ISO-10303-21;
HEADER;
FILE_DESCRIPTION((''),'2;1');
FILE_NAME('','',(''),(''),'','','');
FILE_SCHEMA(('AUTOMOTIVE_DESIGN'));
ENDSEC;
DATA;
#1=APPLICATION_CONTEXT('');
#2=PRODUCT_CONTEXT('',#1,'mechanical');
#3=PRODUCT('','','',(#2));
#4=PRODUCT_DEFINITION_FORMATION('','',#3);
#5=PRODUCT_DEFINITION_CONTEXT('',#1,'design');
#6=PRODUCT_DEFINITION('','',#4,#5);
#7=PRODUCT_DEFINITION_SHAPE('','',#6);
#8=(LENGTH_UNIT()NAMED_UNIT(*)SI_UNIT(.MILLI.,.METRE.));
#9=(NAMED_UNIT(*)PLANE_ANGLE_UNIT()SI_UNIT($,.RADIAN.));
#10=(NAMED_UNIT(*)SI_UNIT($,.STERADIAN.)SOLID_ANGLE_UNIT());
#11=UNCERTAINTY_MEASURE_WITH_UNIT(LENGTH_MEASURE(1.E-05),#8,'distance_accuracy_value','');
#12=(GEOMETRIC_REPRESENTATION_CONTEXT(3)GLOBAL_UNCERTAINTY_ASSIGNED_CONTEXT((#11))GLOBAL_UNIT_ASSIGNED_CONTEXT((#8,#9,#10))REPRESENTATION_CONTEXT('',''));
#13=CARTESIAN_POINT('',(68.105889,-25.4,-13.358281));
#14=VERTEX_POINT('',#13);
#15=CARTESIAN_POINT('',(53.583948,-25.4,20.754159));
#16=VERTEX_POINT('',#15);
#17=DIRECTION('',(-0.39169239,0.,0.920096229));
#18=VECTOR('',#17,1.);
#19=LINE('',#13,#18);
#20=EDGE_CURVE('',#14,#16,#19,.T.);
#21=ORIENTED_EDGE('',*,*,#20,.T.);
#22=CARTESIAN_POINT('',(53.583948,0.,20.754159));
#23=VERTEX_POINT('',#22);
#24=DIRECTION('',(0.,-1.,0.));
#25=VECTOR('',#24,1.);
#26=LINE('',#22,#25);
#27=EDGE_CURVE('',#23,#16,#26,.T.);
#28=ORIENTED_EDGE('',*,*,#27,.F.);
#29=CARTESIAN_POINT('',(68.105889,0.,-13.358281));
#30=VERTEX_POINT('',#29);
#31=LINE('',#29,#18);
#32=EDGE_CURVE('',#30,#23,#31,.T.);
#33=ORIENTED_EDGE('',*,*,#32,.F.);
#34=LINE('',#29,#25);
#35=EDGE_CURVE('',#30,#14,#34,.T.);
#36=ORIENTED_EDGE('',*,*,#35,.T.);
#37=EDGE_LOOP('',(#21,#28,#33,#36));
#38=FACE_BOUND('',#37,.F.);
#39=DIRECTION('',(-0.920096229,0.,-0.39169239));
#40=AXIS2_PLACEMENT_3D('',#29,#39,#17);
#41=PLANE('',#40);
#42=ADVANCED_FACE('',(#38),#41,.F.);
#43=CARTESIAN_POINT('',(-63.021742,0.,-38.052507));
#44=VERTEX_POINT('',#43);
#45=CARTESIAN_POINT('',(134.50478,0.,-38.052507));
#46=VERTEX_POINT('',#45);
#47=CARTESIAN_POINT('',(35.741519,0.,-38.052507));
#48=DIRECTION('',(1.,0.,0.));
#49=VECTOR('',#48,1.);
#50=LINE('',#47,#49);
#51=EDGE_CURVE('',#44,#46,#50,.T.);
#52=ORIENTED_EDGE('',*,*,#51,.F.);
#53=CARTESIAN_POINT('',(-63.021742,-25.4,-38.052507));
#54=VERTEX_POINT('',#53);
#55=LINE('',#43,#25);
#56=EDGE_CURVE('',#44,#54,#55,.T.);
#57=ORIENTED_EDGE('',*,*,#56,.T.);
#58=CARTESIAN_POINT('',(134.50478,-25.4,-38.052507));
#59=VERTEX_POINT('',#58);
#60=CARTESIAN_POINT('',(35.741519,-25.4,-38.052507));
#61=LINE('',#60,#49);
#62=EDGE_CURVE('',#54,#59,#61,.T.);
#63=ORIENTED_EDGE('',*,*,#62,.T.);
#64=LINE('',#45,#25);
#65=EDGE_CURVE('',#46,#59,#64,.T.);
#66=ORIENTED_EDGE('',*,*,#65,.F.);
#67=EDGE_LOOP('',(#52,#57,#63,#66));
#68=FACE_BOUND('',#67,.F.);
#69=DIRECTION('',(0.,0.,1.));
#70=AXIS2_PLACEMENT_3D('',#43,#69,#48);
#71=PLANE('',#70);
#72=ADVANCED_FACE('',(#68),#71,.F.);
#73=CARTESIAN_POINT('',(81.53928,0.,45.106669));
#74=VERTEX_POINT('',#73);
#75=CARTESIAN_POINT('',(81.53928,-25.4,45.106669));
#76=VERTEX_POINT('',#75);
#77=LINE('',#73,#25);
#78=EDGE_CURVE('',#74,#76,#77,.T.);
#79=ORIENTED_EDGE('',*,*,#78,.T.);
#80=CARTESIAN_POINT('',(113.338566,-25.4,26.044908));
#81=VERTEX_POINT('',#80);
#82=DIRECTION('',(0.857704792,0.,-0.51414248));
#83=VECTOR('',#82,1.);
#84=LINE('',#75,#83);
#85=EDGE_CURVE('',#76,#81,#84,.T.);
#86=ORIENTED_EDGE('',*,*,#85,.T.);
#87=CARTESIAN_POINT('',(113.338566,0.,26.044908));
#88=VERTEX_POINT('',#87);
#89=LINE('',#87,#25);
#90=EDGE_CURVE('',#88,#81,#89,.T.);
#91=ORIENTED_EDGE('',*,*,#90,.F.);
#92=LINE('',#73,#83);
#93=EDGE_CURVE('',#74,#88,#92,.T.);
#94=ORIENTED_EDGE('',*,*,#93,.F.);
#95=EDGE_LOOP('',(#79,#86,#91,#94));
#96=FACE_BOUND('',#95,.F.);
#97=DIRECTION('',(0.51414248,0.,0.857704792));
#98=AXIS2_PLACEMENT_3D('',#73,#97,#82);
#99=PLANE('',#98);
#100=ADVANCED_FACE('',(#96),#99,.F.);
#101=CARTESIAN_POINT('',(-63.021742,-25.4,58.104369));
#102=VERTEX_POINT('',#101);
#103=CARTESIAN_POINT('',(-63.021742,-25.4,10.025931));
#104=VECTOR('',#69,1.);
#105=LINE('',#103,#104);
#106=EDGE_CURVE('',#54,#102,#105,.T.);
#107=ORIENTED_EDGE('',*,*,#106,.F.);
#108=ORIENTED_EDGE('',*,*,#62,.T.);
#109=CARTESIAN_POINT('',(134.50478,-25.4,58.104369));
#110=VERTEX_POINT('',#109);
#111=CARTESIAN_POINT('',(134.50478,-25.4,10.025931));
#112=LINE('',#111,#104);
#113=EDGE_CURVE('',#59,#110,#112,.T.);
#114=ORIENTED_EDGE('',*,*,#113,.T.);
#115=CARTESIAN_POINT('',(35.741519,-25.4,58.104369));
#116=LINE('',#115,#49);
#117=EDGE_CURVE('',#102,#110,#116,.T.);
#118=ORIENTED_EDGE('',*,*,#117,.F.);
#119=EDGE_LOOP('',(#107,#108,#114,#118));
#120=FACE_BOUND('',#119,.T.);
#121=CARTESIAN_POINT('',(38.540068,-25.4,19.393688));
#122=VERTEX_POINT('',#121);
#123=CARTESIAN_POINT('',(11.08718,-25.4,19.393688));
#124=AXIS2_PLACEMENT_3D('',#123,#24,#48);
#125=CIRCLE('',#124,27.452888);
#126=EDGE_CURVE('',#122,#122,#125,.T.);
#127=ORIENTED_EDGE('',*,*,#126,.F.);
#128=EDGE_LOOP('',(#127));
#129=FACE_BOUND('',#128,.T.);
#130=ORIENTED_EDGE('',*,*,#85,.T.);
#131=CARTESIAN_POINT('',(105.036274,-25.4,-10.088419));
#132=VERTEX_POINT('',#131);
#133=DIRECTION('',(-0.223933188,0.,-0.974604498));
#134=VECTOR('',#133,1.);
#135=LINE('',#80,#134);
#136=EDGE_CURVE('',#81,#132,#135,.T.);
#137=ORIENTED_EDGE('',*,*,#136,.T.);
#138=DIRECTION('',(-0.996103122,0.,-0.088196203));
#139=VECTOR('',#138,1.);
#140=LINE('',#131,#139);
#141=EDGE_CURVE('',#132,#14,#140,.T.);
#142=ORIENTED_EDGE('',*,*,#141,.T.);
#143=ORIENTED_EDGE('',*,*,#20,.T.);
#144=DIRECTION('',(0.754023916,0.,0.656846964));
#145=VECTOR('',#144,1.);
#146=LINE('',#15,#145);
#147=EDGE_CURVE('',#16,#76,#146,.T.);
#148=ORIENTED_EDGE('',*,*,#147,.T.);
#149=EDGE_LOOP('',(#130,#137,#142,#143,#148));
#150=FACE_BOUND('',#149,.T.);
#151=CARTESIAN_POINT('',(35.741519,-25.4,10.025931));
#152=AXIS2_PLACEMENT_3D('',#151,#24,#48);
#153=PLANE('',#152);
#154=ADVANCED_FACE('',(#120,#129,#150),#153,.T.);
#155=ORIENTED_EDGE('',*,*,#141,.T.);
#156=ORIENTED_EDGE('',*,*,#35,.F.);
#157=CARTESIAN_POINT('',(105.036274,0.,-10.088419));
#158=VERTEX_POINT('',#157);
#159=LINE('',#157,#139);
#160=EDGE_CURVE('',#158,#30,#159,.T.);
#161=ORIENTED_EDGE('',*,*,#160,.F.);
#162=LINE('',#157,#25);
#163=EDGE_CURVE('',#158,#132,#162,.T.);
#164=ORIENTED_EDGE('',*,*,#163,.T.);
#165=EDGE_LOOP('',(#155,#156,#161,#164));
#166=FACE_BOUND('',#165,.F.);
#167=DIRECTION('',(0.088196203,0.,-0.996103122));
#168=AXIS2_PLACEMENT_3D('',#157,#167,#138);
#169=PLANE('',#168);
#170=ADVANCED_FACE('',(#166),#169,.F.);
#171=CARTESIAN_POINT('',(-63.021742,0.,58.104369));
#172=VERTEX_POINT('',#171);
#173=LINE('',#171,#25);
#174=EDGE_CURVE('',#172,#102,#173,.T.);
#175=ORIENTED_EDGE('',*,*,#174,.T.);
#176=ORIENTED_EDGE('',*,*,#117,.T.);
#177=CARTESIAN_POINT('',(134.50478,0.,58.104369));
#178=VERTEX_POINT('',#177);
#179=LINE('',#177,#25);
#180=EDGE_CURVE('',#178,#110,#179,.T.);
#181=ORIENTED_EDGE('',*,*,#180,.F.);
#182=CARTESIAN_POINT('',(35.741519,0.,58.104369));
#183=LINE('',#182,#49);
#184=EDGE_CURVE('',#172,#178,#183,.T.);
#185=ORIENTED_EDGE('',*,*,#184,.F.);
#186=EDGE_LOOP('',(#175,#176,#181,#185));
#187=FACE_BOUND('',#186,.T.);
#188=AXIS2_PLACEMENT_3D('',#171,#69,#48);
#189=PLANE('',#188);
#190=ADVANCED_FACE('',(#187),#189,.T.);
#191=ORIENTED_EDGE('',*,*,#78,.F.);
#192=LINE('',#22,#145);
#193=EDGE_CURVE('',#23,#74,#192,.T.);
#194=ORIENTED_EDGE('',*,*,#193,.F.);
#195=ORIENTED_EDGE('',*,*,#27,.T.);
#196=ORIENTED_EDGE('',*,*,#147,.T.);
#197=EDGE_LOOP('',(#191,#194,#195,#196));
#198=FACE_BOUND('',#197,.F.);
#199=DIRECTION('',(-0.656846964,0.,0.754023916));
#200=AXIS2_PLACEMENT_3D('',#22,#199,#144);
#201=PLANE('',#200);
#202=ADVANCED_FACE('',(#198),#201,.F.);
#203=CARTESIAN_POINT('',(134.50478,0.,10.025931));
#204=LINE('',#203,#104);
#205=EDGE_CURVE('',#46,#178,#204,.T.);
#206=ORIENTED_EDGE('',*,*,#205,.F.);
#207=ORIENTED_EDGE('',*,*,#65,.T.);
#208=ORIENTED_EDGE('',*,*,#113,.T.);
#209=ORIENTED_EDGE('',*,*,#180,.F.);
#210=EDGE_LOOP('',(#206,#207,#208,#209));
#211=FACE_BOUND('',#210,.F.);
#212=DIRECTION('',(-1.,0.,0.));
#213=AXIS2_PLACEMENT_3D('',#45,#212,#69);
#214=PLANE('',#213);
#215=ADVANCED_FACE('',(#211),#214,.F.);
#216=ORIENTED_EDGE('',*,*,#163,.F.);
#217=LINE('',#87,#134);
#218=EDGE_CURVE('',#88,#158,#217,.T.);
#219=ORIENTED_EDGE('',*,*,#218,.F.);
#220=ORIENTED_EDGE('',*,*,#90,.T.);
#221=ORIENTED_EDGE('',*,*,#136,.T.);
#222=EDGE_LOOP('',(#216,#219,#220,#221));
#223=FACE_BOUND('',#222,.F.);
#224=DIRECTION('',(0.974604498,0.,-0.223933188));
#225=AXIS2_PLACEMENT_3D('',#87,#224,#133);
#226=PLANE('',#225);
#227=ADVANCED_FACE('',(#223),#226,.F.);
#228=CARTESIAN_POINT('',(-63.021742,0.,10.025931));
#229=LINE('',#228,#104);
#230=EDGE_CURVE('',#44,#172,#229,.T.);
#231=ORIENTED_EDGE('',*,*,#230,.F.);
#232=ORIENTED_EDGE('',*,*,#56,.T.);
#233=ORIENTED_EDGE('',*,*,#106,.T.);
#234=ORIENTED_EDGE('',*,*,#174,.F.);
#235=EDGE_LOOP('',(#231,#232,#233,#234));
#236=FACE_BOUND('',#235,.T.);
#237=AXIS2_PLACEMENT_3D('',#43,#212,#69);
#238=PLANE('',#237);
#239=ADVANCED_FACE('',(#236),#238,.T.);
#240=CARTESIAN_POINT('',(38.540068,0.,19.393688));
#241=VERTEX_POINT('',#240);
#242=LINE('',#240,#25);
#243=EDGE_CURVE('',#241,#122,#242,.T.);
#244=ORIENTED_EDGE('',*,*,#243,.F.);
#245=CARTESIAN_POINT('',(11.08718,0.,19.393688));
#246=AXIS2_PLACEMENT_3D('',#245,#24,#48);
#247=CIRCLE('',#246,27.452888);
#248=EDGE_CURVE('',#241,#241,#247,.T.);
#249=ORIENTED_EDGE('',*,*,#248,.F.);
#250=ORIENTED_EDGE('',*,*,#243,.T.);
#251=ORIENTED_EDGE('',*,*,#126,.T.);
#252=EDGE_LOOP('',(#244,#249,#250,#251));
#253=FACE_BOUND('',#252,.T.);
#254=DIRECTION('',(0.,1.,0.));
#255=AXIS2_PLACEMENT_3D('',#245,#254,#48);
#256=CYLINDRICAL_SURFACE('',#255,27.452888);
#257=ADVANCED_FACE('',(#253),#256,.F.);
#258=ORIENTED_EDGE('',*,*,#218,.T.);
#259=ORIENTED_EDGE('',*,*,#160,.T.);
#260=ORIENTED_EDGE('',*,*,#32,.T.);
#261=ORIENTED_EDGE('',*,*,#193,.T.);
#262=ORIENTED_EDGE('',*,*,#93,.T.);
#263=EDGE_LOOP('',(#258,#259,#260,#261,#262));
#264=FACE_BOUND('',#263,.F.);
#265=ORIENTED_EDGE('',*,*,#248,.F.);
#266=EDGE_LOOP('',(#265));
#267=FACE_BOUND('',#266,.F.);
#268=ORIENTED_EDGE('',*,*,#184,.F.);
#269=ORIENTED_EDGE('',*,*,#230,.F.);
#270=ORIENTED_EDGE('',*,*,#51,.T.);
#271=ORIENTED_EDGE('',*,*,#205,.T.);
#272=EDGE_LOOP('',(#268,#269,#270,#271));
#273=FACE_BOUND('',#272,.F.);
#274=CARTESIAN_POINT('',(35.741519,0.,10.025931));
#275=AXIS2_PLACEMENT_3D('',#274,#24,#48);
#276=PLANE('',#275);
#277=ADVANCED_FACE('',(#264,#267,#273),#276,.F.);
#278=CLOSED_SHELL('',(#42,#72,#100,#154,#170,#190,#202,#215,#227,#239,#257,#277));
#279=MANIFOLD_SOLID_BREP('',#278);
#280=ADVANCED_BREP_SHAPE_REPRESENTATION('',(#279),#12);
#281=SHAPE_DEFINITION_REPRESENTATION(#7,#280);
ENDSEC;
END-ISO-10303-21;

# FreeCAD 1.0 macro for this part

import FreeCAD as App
import Part
import Sketcher
from FreeCAD import Vector
Q = App.Units.Quantity

doc = App.newDocument("Part")
body = doc.addObject("PartDesign::Body", "Body")

sketch1 = doc.addObject("Sketcher::SketchObject", "Sketch")
body.addObject(sketch1)
sketch1.AttachmentSupport = (doc.XZ_Plane, [""])
sketch1.MapMode = "FlatFace"
sketch1.addGeometry(Part.LineSegment(Vector(-63.021742, 58.104369, 0), Vector(-63.021742, -38.052507, 0)), False)
sketch1.addGeometry(Part.LineSegment(Vector(-63.021742, -38.052507, 0), Vector(134.50478, -38.052507, 0)), False)
sketch1.addGeometry(Part.LineSegment(Vector(134.50478, -38.052507, 0), Vector(134.50478, 58.104369, 0)), False)
sketch1.addGeometry(Part.LineSegment(Vector(134.50478, 58.104369, 0), Vector(-63.021742, 58.104369, 0)), False)
sketch1.addGeometry(Part.LineSegment(Vector(81.53928, 45.106669, 0), Vector(113.338566, 26.044908, 0)), False)
sketch1.addGeometry(Part.LineSegment(Vector(113.338566, 26.044908, 0), Vector(105.036274, -10.088419, 0)), False)
sketch1.addGeometry(Part.LineSegment(Vector(105.036274, -10.088419, 0), Vector(68.105889, -13.358281, 0)), False)
sketch1.addGeometry(Part.LineSegment(Vector(68.105889, -13.358281, 0), Vector(53.583948, 20.754159, 0)), False)
sketch1.addGeometry(Part.LineSegment(Vector(53.583948, 20.754159, 0), Vector(81.53928, 45.106669, 0)), False)
sketch1.addGeometry(Part.Circle(Vector(11.08718, 19.393688, 0), Vector(0, 0, 1), 27.452888), False)
sketch1.addConstraint(Sketcher.Constraint("Coincident", 0, 2, 1, 1))
sketch1.addConstraint(Sketcher.Constraint("Coincident", 1, 2, 2, 1))
sketch1.addConstraint(Sketcher.Constraint("Coincident", 2, 2, 3, 1))
sketch1.addConstraint(Sketcher.Constraint("Coincident", 3, 2, 0, 1))
sketch1.addConstraint(Sketcher.Constraint("Coincident", 4, 2, 5, 1))
sketch1.addConstraint(Sketcher.Constraint("Coincident", 5, 2, 6, 1))
sketch1.addConstraint(Sketcher.Constraint("Coincident", 6, 2, 7, 1))
sketch1.addConstraint(Sketcher.Constraint("Coincident", 7, 2, 8, 1))
sketch1.addConstraint(Sketcher.Constraint("Coincident", 8, 2, 4, 1))
sketch1.addConstraint(Sketcher.Constraint("Vertical", 0))
sketch1.addConstraint(Sketcher.Constraint("Horizontal", 1))
sketch1.addConstraint(Sketcher.Constraint("Vertical", 2))
sketch1.addConstraint(Sketcher.Constraint("Horizontal", 3))
sketch1.addConstraint(Sketcher.Constraint("Equal", 4, 5))
sketch1.addConstraint(Sketcher.Constraint("Equal", 5, 6))
sketch1.addConstraint(Sketcher.Constraint("Equal", 6, 7))
sketch1.addConstraint(Sketcher.Constraint("Equal", 7, 8))
sketch1.addConstraint(Sketcher.Constraint("Diameter", 9, 54.905776))
sketch1.addConstraint(Sketcher.Constraint("DistanceX", 1, 1, 1, 2, 197.526522))
sketch1.addConstraint(Sketcher.Constraint("DistanceX", 9, 3, 1, 2, 123.4176))
sketch1.addConstraint(Sketcher.Constraint("DistanceX", 8, 2, 2, 2, 52.9655))
sketch1.addConstraint(Sketcher.Constraint("DistanceY", 8, 2, 2, 2, 12.997701))
sketch1.addConstraint(Sketcher.Constraint("Distance", 4, 37.074861))
sketch1.addConstraint(Sketcher.Constraint("DistanceY", 0, 2, 0, 1, 96.156877))
sketch1.addConstraint(Sketcher.Constraint("DistanceX", -1, 1, 9, 3, 11.08718))
sketch1.addConstraint(Sketcher.Constraint("DistanceY", -1, 1, 9, 3, 19.393688))
sketch1.addConstraint(Sketcher.Constraint("DistanceY", -1, 1, 2, 2, 58.104369))
sketch1.addConstraint(Sketcher.Constraint("DistanceY", 5, 2, -1, 1, 10.088419))
sketch1.addConstraint(Sketcher.Constraint("DistanceX", -1, 1, 6, 2, 68.105889))
sketch1.addConstraint(Sketcher.Constraint("DistanceY", 6, 2, -1, 1, 13.358281))
pad1 = doc.addObject("PartDesign::Pad", "Pad")
body.addObject(pad1)
pad1.Profile = sketch1
pad1.Length = Q("1 in")

doc.recompute()
